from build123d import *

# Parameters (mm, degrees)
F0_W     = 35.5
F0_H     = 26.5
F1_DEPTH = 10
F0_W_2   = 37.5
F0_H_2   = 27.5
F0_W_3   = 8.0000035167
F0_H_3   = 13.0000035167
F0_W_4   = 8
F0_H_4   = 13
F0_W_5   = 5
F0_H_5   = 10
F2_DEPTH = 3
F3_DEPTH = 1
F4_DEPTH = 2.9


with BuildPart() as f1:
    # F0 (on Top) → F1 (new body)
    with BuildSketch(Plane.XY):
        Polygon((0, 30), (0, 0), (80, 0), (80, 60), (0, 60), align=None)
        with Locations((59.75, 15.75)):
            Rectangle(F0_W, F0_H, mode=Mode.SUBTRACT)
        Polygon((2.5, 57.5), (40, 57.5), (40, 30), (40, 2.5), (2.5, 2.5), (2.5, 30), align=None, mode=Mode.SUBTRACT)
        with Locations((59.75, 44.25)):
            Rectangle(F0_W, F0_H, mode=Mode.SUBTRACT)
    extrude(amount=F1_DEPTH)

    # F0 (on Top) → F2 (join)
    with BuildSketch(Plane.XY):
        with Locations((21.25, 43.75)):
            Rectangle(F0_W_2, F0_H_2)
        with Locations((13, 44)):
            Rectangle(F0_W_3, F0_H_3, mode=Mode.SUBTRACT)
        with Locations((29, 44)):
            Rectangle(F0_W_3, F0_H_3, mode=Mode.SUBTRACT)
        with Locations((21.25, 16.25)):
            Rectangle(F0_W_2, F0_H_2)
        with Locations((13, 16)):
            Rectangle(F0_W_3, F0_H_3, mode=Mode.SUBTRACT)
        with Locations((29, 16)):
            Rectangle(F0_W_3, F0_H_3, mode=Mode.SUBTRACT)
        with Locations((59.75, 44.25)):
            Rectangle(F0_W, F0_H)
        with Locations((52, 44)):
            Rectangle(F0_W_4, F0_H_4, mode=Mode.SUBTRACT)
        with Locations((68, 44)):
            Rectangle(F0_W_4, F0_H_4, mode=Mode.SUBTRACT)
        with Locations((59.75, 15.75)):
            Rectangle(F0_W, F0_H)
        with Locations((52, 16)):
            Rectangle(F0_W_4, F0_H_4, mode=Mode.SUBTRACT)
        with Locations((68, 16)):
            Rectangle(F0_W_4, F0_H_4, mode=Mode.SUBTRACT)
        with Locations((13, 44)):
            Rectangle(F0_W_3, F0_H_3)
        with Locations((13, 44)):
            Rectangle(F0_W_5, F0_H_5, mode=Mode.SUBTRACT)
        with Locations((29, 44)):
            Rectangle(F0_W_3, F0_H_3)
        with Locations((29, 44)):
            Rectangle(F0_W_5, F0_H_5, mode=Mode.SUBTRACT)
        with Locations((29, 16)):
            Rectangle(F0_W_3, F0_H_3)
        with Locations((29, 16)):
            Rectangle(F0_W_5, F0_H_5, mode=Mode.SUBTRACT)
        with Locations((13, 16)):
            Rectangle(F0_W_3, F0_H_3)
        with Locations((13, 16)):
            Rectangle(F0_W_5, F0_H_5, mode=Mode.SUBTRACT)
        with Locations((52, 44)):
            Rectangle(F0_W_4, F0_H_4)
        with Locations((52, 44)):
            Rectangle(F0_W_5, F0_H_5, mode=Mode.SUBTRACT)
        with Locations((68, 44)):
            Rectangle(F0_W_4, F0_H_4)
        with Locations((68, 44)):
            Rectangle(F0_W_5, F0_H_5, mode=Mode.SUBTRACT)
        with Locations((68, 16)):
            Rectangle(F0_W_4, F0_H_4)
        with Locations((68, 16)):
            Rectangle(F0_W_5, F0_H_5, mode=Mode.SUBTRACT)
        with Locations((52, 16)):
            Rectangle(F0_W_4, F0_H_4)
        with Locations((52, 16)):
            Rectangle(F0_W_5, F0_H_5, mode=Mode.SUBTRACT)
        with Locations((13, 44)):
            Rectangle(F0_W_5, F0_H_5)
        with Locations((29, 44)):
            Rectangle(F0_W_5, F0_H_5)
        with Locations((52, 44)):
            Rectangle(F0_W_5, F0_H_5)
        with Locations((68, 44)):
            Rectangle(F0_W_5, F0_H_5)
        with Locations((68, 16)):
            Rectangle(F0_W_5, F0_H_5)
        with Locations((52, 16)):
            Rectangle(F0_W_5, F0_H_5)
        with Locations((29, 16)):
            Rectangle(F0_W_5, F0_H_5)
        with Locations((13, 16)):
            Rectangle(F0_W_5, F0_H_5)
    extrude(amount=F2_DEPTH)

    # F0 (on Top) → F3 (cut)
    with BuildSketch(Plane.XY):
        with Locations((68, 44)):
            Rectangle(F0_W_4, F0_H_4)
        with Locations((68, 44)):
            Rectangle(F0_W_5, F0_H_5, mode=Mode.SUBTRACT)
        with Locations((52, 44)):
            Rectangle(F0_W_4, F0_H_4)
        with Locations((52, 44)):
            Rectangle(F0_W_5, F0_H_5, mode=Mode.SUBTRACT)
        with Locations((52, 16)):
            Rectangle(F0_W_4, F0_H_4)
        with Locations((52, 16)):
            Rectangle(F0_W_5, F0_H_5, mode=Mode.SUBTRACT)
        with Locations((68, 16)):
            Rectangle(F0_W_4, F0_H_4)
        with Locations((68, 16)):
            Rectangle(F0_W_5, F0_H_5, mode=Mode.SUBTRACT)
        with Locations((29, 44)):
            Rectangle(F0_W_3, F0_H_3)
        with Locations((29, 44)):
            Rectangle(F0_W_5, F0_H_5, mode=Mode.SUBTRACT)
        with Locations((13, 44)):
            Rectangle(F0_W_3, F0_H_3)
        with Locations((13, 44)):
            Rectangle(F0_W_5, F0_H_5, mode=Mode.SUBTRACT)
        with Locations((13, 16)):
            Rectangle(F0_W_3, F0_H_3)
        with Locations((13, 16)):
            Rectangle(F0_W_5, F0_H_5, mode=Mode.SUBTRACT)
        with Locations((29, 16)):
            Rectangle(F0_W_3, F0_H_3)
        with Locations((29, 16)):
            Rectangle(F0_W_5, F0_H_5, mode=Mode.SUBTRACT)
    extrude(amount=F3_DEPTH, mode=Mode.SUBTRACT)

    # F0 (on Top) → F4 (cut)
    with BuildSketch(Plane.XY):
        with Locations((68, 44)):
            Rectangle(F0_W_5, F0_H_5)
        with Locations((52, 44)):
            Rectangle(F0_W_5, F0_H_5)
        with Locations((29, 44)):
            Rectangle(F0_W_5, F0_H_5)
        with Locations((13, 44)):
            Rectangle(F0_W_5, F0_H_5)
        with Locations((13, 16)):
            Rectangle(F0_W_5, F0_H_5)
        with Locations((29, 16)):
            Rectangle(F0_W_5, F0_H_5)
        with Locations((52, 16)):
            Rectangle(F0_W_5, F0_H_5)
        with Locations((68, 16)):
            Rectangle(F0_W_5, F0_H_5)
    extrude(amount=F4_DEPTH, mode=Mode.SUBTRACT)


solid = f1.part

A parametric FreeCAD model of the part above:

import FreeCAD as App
import Part
import Sketcher

V = App.Vector
Q = App.Units.Quantity

doc = App.newDocument("Part")
body = doc.addObject("PartDesign::Body", "Body")

sketch1 = doc.addObject("Sketcher::SketchObject", "Sketch")
body.addObject(sketch1)
sketch1.AttachmentSupport = (doc.XY_Plane, [""])
sketch1.MapMode = "FlatFace"
sketch1.addGeometry(Part.LineSegment(V(0, 0, 0), V(80, 0, 0)), False)
sketch1.addGeometry(Part.LineSegment(V(80, 0, 0), V(80, 60, 0)), False)
sketch1.addGeometry(Part.LineSegment(V(80, 60, 0), V(0, 60, 0)), False)
sketch1.addGeometry(Part.LineSegment(V(0, 60, 0), V(0, 0, 0)), False)
sketch1.addGeometry(Part.LineSegment(V(77.5, 2.5, 0), V(42, 2.5, 0)), False)
sketch1.addGeometry(Part.LineSegment(V(42, 2.5, 0), V(42, 29, 0)), False)
sketch1.addGeometry(Part.LineSegment(V(42, 29, 0), V(77.5, 29, 0)), False)
sketch1.addGeometry(Part.LineSegment(V(77.5, 29, 0), V(77.5, 2.5, 0)), False)
sketch1.addGeometry(Part.LineSegment(V(2.5, 2.5, 0), V(2.5, 57.5, 0)), False)
sketch1.addGeometry(Part.LineSegment(V(2.5, 57.5, 0), V(40, 57.5, 0)), False)
sketch1.addGeometry(Part.LineSegment(V(40, 57.5, 0), V(40, 2.5, 0)), False)
sketch1.addGeometry(Part.LineSegment(V(40, 2.5, 0), V(2.5, 2.5, 0)), False)
sketch1.addGeometry(Part.LineSegment(V(77.5, 31, 0), V(42, 31, 0)), False)
sketch1.addGeometry(Part.LineSegment(V(42, 31, 0), V(42, 57.5, 0)), False)
sketch1.addGeometry(Part.LineSegment(V(42, 57.5, 0), V(77.5, 57.5, 0)), False)
sketch1.addGeometry(Part.LineSegment(V(77.5, 57.5, 0), V(77.5, 31, 0)), False)
sketch1.addConstraint(Sketcher.Constraint("Coincident", 0, 2, 1, 1))
sketch1.addConstraint(Sketcher.Constraint("Coincident", 1, 2, 2, 1))
sketch1.addConstraint(Sketcher.Constraint("Coincident", 2, 2, 3, 1))
sketch1.addConstraint(Sketcher.Constraint("Coincident", 3, 2, 0, 1))
sketch1.addConstraint(Sketcher.Constraint("Coincident", 4, 2, 5, 1))
sketch1.addConstraint(Sketcher.Constraint("Coincident", 5, 2, 6, 1))
sketch1.addConstraint(Sketcher.Constraint("Coincident", 6, 2, 7, 1))
sketch1.addConstraint(Sketcher.Constraint("Coincident", 7, 2, 4, 1))
sketch1.addConstraint(Sketcher.Constraint("Coincident", 8, 2, 9, 1))
sketch1.addConstraint(Sketcher.Constraint("Coincident", 9, 2, 10, 1))
sketch1.addConstraint(Sketcher.Constraint("Coincident", 10, 2, 11, 1))
sketch1.addConstraint(Sketcher.Constraint("Coincident", 11, 2, 8, 1))
sketch1.addConstraint(Sketcher.Constraint("Coincident", 12, 2, 13, 1))
sketch1.addConstraint(Sketcher.Constraint("Coincident", 13, 2, 14, 1))
sketch1.addConstraint(Sketcher.Constraint("Coincident", 14, 2, 15, 1))
sketch1.addConstraint(Sketcher.Constraint("Coincident", 15, 2, 12, 1))
sketch1.addConstraint(Sketcher.Constraint("Horizontal", 0))
sketch1.addConstraint(Sketcher.Constraint("Vertical", 1))
sketch1.addConstraint(Sketcher.Constraint("Horizontal", 2))
sketch1.addConstraint(Sketcher.Constraint("Vertical", 3))
sketch1.addConstraint(Sketcher.Constraint("Horizontal", 4))
sketch1.addConstraint(Sketcher.Constraint("Vertical", 5))
sketch1.addConstraint(Sketcher.Constraint("Horizontal", 6))
sketch1.addConstraint(Sketcher.Constraint("Vertical", 7))
sketch1.addConstraint(Sketcher.Constraint("Vertical", 8))
sketch1.addConstraint(Sketcher.Constraint("Horizontal", 9))
sketch1.addConstraint(Sketcher.Constraint("Vertical", 10))
sketch1.addConstraint(Sketcher.Constraint("Horizontal", 11))
sketch1.addConstraint(Sketcher.Constraint("Horizontal", 12))
sketch1.addConstraint(Sketcher.Constraint("Vertical", 13))
sketch1.addConstraint(Sketcher.Constraint("Horizontal", 14))
sketch1.addConstraint(Sketcher.Constraint("Vertical", 15))
sketch1.addConstraint(Sketcher.Constraint("Coincident", 3, 2, -1, 1))
sketch1.addConstraint(Sketcher.Constraint("Horizontal", 7, 2, 10, 2))
sketch1.addConstraint(Sketcher.Constraint("Horizontal", 9, 2, 13, 2))
sketch1.addConstraint(Sketcher.Constraint("Vertical", 5, 2, 12, 2))
sketch1.addConstraint(Sketcher.Constraint("Vertical", 7, 2, 14, 2))
sketch1.addConstraint(Sketcher.Constraint("Equal", 7, 13))
sketch1.addConstraint(Sketcher.Constraint("DistanceX", 0, 1, 0, 2, Q("80 mm")))
sketch1.addConstraint(Sketcher.Constraint("DistanceY", 1, 1, 1, 2, Q("60 mm")))
sketch1.addConstraint(Sketcher.Constraint("DistanceY", 8, 1, 8, 2, Q("55 mm")))
sketch1.addConstraint(Sketcher.Constraint("DistanceX", 4, 2, 4, 1, Q("35.5 mm")))
sketch1.addConstraint(Sketcher.Constraint("DistanceX", 9, 1, 9, 2, Q("37.5 mm")))
sketch1.addConstraint(Sketcher.Constraint("DistanceY", 5, 1, 5, 2, Q("26.5 mm")))
sketch1.addConstraint(Sketcher.Constraint("DistanceX", -1, 1, 4, 2, Q("42 mm")))
sketch1.addConstraint(Sketcher.Constraint("DistanceY", -1, 1, 5, 2, Q("29 mm")))
sketch1.addConstraint(Sketcher.Constraint("DistanceX", -1, 1, 9, 2, Q("40 mm")))
pad1 = doc.addObject("PartDesign::Pad", "Pad")
body.addObject(pad1)
pad1.Profile = sketch1
pad1.Length = 10

sketch2 = doc.addObject("Sketcher::SketchObject", "Sketch001")
body.addObject(sketch2)
sketch2.AttachmentSupport = (doc.XY_Plane, [""])
sketch2.MapMode = "FlatFace"
sketch2.addGeometry(Part.LineSegment(V(2.5, 57.5, 0), V(2.5, 2.5, 0)), False)
sketch2.addGeometry(Part.LineSegment(V(2.5, 2.5, 0), V(40, 2.5, 0)), False)
sketch2.addGeometry(Part.LineSegment(V(40, 2.5, 0), V(40, 57.5, 0)), False)
sketch2.addGeometry(Part.LineSegment(V(40, 57.5, 0), V(2.5, 57.5, 0)), False)
sketch2.addGeometry(Part.LineSegment(V(42, 57.5, 0), V(42, 31, 0)), False)
sketch2.addGeometry(Part.LineSegment(V(42, 31, 0), V(77.5, 31, 0)), False)
sketch2.addGeometry(Part.LineSegment(V(77.5, 31, 0), V(77.5, 57.5, 0)), False)
sketch2.addGeometry(Part.LineSegment(V(77.5, 57.5, 0), V(42, 57.5, 0)), False)
sketch2.addGeometry(Part.LineSegment(V(42, 29, 0), V(42, 2.5, 0)), False)
sketch2.addGeometry(Part.LineSegment(V(42, 2.5, 0), V(77.5, 2.5, 0)), False)
sketch2.addGeometry(Part.LineSegment(V(77.5, 2.5, 0), V(77.5, 29, 0)), False)
sketch2.addGeometry(Part.LineSegment(V(77.5, 29, 0), V(42, 29, 0)), False)
sketch2.addConstraint(Sketcher.Constraint("Coincident", 0, 2, 1, 1))
sketch2.addConstraint(Sketcher.Constraint("Coincident", 1, 2, 2, 1))
sketch2.addConstraint(Sketcher.Constraint("Coincident", 2, 2, 3, 1))
sketch2.addConstraint(Sketcher.Constraint("Coincident", 3, 2, 0, 1))
sketch2.addConstraint(Sketcher.Constraint("Coincident", 4, 2, 5, 1))
sketch2.addConstraint(Sketcher.Constraint("Coincident", 5, 2, 6, 1))
sketch2.addConstraint(Sketcher.Constraint("Coincident", 6, 2, 7, 1))
sketch2.addConstraint(Sketcher.Constraint("Coincident", 7, 2, 4, 1))
sketch2.addConstraint(Sketcher.Constraint("Coincident", 8, 2, 9, 1))
sketch2.addConstraint(Sketcher.Constraint("Coincident", 9, 2, 10, 1))
sketch2.addConstraint(Sketcher.Constraint("Coincident", 10, 2, 11, 1))
sketch2.addConstraint(Sketcher.Constraint("Coincident", 11, 2, 8, 1))
sketch2.addConstraint(Sketcher.Constraint("Vertical", 0))
sketch2.addConstraint(Sketcher.Constraint("Horizontal", 1))
sketch2.addConstraint(Sketcher.Constraint("Vertical", 2))
sketch2.addConstraint(Sketcher.Constraint("Horizontal", 3))
sketch2.addConstraint(Sketcher.Constraint("Vertical", 4))
sketch2.addConstraint(Sketcher.Constraint("Horizontal", 5))
sketch2.addConstraint(Sketcher.Constraint("Vertical", 6))
sketch2.addConstraint(Sketcher.Constraint("Horizontal", 7))
sketch2.addConstraint(Sketcher.Constraint("Vertical", 8))
sketch2.addConstraint(Sketcher.Constraint("Horizontal", 9))
sketch2.addConstraint(Sketcher.Constraint("Vertical", 10))
sketch2.addConstraint(Sketcher.Constraint("Horizontal", 11))
sketch2.addConstraint(Sketcher.Constraint("Horizontal", 3, 2, 6, 2))
sketch2.addConstraint(Sketcher.Constraint("Horizontal", 1, 2, 8, 2))
sketch2.addConstraint(Sketcher.Constraint("Vertical", 7, 2, 8, 2))
sketch2.addConstraint(Sketcher.Constraint("Vertical", 6, 2, 9, 2))
sketch2.addConstraint(Sketcher.Constraint("Equal", 6, 8))
sketch2.addConstraint(Sketcher.Constraint("DistanceY", 0, 2, 0, 1, Q("55 mm")))
sketch2.addConstraint(Sketcher.Constraint("DistanceX", 1, 1, 1, 2, Q("37.5 mm")))
sketch2.addConstraint(Sketcher.Constraint("DistanceX", 5, 1, 5, 2, Q("35.5 mm")))
sketch2.addConstraint(Sketcher.Constraint("DistanceY", 4, 2, 4, 1, Q("26.5 mm")))
sketch2.addConstraint(Sketcher.Constraint("DistanceX", -1, 1, 1, 2, Q("40 mm")))
sketch2.addConstraint(Sketcher.Constraint("DistanceX", -1, 1, 4, 2, Q("42 mm")))
sketch2.addConstraint(Sketcher.Constraint("DistanceY", -1, 1, 4, 2, Q("31 mm")))
pad2 = doc.addObject("PartDesign::Pad", "Pad001")
body.addObject(pad2)
pad2.Profile = sketch2
pad2.Length = 3

sketch3 = doc.addObject("Sketcher::SketchObject", "Sketch002")
body.addObject(sketch3)
sketch3.AttachmentSupport = (doc.XY_Plane, [""])
sketch3.MapMode = "FlatFace"
sketch3.addGeometry(Part.LineSegment(V(64, 50.5, 0), V(64, 37.5, 0)), False)
sketch3.addGeometry(Part.LineSegment(V(64, 37.5, 0), V(72, 37.5, 0)), False)
sketch3.addGeometry(Part.LineSegment(V(72, 37.5, 0), V(72, 50.5, 0)), False)
sketch3.addGeometry(Part.LineSegment(V(72, 50.5, 0), V(64, 50.5, 0)), False)
sketch3.addGeometry(Part.LineSegment(V(70.5, 39, 0), V(65.5, 39, 0)), False)
sketch3.addGeometry(Part.LineSegment(V(65.5, 39, 0), V(65.5, 49, 0)), False)
sketch3.addGeometry(Part.LineSegment(V(65.5, 49, 0), V(70.5, 49, 0)), False)
sketch3.addGeometry(Part.LineSegment(V(70.5, 49, 0), V(70.5, 39, 0)), False)
sketch3.addGeometry(Part.LineSegment(V(48, 50.5, 0), V(48, 37.5, 0)), False)
sketch3.addGeometry(Part.LineSegment(V(48, 37.5, 0), V(56, 37.5, 0)), False)
sketch3.addGeometry(Part.LineSegment(V(56, 37.5, 0), V(56, 50.5, 0)), False)
sketch3.addGeometry(Part.LineSegment(V(56, 50.5, 0), V(48, 50.5, 0)), False)
sketch3.addGeometry(Part.LineSegment(V(54.5, 39, 0), V(49.5, 39, 0)), False)
sketch3.addGeometry(Part.LineSegment(V(49.5, 39, 0), V(49.5, 49, 0)), False)
sketch3.addGeometry(Part.LineSegment(V(49.5, 49, 0), V(54.5, 49, 0)), False)
sketch3.addGeometry(Part.LineSegment(V(54.5, 49, 0), V(54.5, 39, 0)), False)
sketch3.addGeometry(Part.LineSegment(V(48, 22.5, 0), V(48, 9.5, 0)), False)
sketch3.addGeometry(Part.LineSegment(V(48, 9.5, 0), V(56, 9.5, 0)), False)
sketch3.addGeometry(Part.LineSegment(V(56, 9.5, 0), V(56, 22.5, 0)), False)
sketch3.addGeometry(Part.LineSegment(V(56, 22.5, 0), V(48, 22.5, 0)), False)
sketch3.addGeometry(Part.LineSegment(V(54.5, 11, 0), V(49.5, 11, 0)), False)
sketch3.addGeometry(Part.LineSegment(V(49.5, 11, 0), V(49.5, 21, 0)), False)
sketch3.addGeometry(Part.LineSegment(V(49.5, 21, 0), V(54.5, 21, 0)), False)
sketch3.addGeometry(Part.LineSegment(V(54.5, 21, 0), V(54.5, 11, 0)), False)
sketch3.addGeometry(Part.LineSegment(V(64, 22.5, 0), V(64, 9.5, 0)), False)
sketch3.addGeometry(Part.LineSegment(V(64, 9.5, 0), V(72, 9.5, 0)), False)
sketch3.addGeometry(Part.LineSegment(V(72, 9.5, 0), V(72, 22.5, 0)), False)
sketch3.addGeometry(Part.LineSegment(V(72, 22.5, 0), V(64, 22.5, 0)), False)
sketch3.addGeometry(Part.LineSegment(V(70.5, 11, 0), V(65.5, 11, 0)), False)
sketch3.addGeometry(Part.LineSegment(V(65.5, 11, 0), V(65.5, 21, 0)), False)
sketch3.addGeometry(Part.LineSegment(V(65.5, 21, 0), V(70.5, 21, 0)), False)
sketch3.addGeometry(Part.LineSegment(V(70.5, 21, 0), V(70.5, 11, 0)), False)
sketch3.addGeometry(Part.LineSegment(V(24.999998, 50.500002, 0), V(24.999998, 37.499998, 0)), False)
sketch3.addGeometry(Part.LineSegment(V(24.999998, 37.499998, 0), V(33.000002, 37.499998, 0)), False)
sketch3.addGeometry(Part.LineSegment(V(33.000002, 37.499998, 0), V(33.000002, 50.500002, 0)), False)
sketch3.addGeometry(Part.LineSegment(V(33.000002, 50.500002, 0), V(24.999998, 50.500002, 0)), False)
sketch3.addGeometry(Part.LineSegment(V(31.5, 39, 0), V(26.5, 39, 0)), False)
sketch3.addGeometry(Part.LineSegment(V(26.5, 39, 0), V(26.5, 49, 0)), False)
sketch3.addGeometry(Part.LineSegment(V(26.5, 49, 0), V(31.5, 49, 0)), False)
sketch3.addGeometry(Part.LineSegment(V(31.5, 49, 0), V(31.5, 39, 0)), False)
sketch3.addGeometry(Part.LineSegment(V(8.999998, 50.500002, 0), V(8.999998, 37.499998, 0)), False)
sketch3.addGeometry(Part.LineSegment(V(8.999998, 37.499998, 0), V(17.000002, 37.499998, 0)), False)
sketch3.addGeometry(Part.LineSegment(V(17.000002, 37.499998, 0), V(17.000002, 50.500002, 0)), False)
sketch3.addGeometry(Part.LineSegment(V(17.000002, 50.500002, 0), V(8.999998, 50.500002, 0)), False)
sketch3.addGeometry(Part.LineSegment(V(15.5, 39, 0), V(10.5, 39, 0)), False)
sketch3.addGeometry(Part.LineSegment(V(10.5, 39, 0), V(10.5, 49, 0)), False)
sketch3.addGeometry(Part.LineSegment(V(10.5, 49, 0), V(15.5, 49, 0)), False)
sketch3.addGeometry(Part.LineSegment(V(15.5, 49, 0), V(15.5, 39, 0)), False)
sketch3.addGeometry(Part.LineSegment(V(8.999998, 22.500002, 0), V(8.999998, 9.499998, 0)), False)
sketch3.addGeometry(Part.LineSegment(V(8.999998, 9.499998, 0), V(17.000002, 9.499998, 0)), False)
sketch3.addGeometry(Part.LineSegment(V(17.000002, 9.499998, 0), V(17.000002, 22.500002, 0)), False)
sketch3.addGeometry(Part.LineSegment(V(17.000002, 22.500002, 0), V(8.999998, 22.500002, 0)), False)
sketch3.addGeometry(Part.LineSegment(V(15.5, 11, 0), V(10.5, 11, 0)), False)
sketch3.addGeometry(Part.LineSegment(V(10.5, 11, 0), V(10.5, 21, 0)), False)
sketch3.addGeometry(Part.LineSegment(V(10.5, 21, 0), V(15.5, 21, 0)), False)
sketch3.addGeometry(Part.LineSegment(V(15.5, 21, 0), V(15.5, 11, 0)), False)
sketch3.addGeometry(Part.LineSegment(V(24.999998, 22.500002, 0), V(24.999998, 9.499998, 0)), False)
sketch3.addGeometry(Part.LineSegment(V(24.999998, 9.499998, 0), V(33.000002, 9.499998, 0)), False)
sketch3.addGeometry(Part.LineSegment(V(33.000002, 9.499998, 0), V(33.000002, 22.500002, 0)), False)
sketch3.addGeometry(Part.LineSegment(V(33.000002, 22.500002, 0), V(24.999998, 22.500002, 0)), False)
sketch3.addGeometry(Part.LineSegment(V(31.5, 11, 0), V(26.5, 11, 0)), False)
sketch3.addGeometry(Part.LineSegment(V(26.5, 11, 0), V(26.5, 21, 0)), False)
sketch3.addGeometry(Part.LineSegment(V(26.5, 21, 0), V(31.5, 21, 0)), False)
sketch3.addGeometry(Part.LineSegment(V(31.5, 21, 0), V(31.5, 11, 0)), False)
sketch3.addConstraint(Sketcher.Constraint("Coincident", 0, 2, 1, 1))
sketch3.addConstraint(Sketcher.Constraint("Coincident", 1, 2, 2, 1))
sketch3.addConstraint(Sketcher.Constraint("Coincident", 2, 2, 3, 1))
sketch3.addConstraint(Sketcher.Constraint("Coincident", 3, 2, 0, 1))
sketch3.addConstraint(Sketcher.Constraint("Coincident", 4, 2, 5, 1))
sketch3.addConstraint(Sketcher.Constraint("Coincident", 5, 2, 6, 1))
sketch3.addConstraint(Sketcher.Constraint("Coincident", 6, 2, 7, 1))
sketch3.addConstraint(Sketcher.Constraint("Coincident", 7, 2, 4, 1))
sketch3.addConstraint(Sketcher.Constraint("Coincident", 8, 2, 9, 1))
sketch3.addConstraint(Sketcher.Constraint("Coincident", 9, 2, 10, 1))
sketch3.addConstraint(Sketcher.Constraint("Coincident", 10, 2, 11, 1))
sketch3.addConstraint(Sketcher.Constraint("Coincident", 11, 2, 8, 1))
sketch3.addConstraint(Sketcher.Constraint("Coincident", 12, 2, 13, 1))
sketch3.addConstraint(Sketcher.Constraint("Coincident", 13, 2, 14, 1))
sketch3.addConstraint(Sketcher.Constraint("Coincident", 14, 2, 15, 1))
sketch3.addConstraint(Sketcher.Constraint("Coincident", 15, 2, 12, 1))
sketch3.addConstraint(Sketcher.Constraint("Coincident", 16, 2, 17, 1))
sketch3.addConstraint(Sketcher.Constraint("Coincident", 17, 2, 18, 1))
sketch3.addConstraint(Sketcher.Constraint("Coincident", 18, 2, 19, 1))
sketch3.addConstraint(Sketcher.Constraint("Coincident", 19, 2, 16, 1))
sketch3.addConstraint(Sketcher.Constraint("Coincident", 20, 2, 21, 1))
sketch3.addConstraint(Sketcher.Constraint("Coincident", 21, 2, 22, 1))
sketch3.addConstraint(Sketcher.Constraint("Coincident", 22, 2, 23, 1))
sketch3.addConstraint(Sketcher.Constraint("Coincident", 23, 2, 20, 1))
sketch3.addConstraint(Sketcher.Constraint("Coincident", 24, 2, 25, 1))
sketch3.addConstraint(Sketcher.Constraint("Coincident", 25, 2, 26, 1))
sketch3.addConstraint(Sketcher.Constraint("Coincident", 26, 2, 27, 1))
sketch3.addConstraint(Sketcher.Constraint("Coincident", 27, 2, 24, 1))
sketch3.addConstraint(Sketcher.Constraint("Coincident", 28, 2, 29, 1))
sketch3.addConstraint(Sketcher.Constraint("Coincident", 29, 2, 30, 1))
sketch3.addConstraint(Sketcher.Constraint("Coincident", 30, 2, 31, 1))
sketch3.addConstraint(Sketcher.Constraint("Coincident", 31, 2, 28, 1))
sketch3.addConstraint(Sketcher.Constraint("Coincident", 32, 2, 33, 1))
sketch3.addConstraint(Sketcher.Constraint("Coincident", 33, 2, 34, 1))
sketch3.addConstraint(Sketcher.Constraint("Coincident", 34, 2, 35, 1))
sketch3.addConstraint(Sketcher.Constraint("Coincident", 35, 2, 32, 1))
sketch3.addConstraint(Sketcher.Constraint("Coincident", 36, 2, 37, 1))
sketch3.addConstraint(Sketcher.Constraint("Coincident", 37, 2, 38, 1))
sketch3.addConstraint(Sketcher.Constraint("Coincident", 38, 2, 39, 1))
sketch3.addConstraint(Sketcher.Constraint("Coincident", 39, 2, 36, 1))
sketch3.addConstraint(Sketcher.Constraint("Coincident", 40, 2, 41, 1))
sketch3.addConstraint(Sketcher.Constraint("Coincident", 41, 2, 42, 1))
sketch3.addConstraint(Sketcher.Constraint("Coincident", 42, 2, 43, 1))
sketch3.addConstraint(Sketcher.Constraint("Coincident", 43, 2, 40, 1))
sketch3.addConstraint(Sketcher.Constraint("Coincident", 44, 2, 45, 1))
sketch3.addConstraint(Sketcher.Constraint("Coincident", 45, 2, 46, 1))
sketch3.addConstraint(Sketcher.Constraint("Coincident", 46, 2, 47, 1))
sketch3.addConstraint(Sketcher.Constraint("Coincident", 47, 2, 44, 1))
sketch3.addConstraint(Sketcher.Constraint("Coincident", 48, 2, 49, 1))
sketch3.addConstraint(Sketcher.Constraint("Coincident", 49, 2, 50, 1))
sketch3.addConstraint(Sketcher.Constraint("Coincident", 50, 2, 51, 1))
sketch3.addConstraint(Sketcher.Constraint("Coincident", 51, 2, 48, 1))
sketch3.addConstraint(Sketcher.Constraint("Coincident", 52, 2, 53, 1))
sketch3.addConstraint(Sketcher.Constraint("Coincident", 53, 2, 54, 1))
sketch3.addConstraint(Sketcher.Constraint("Coincident", 54, 2, 55, 1))
sketch3.addConstraint(Sketcher.Constraint("Coincident", 55, 2, 52, 1))
sketch3.addConstraint(Sketcher.Constraint("Coincident", 56, 2, 57, 1))
sketch3.addConstraint(Sketcher.Constraint("Coincident", 57, 2, 58, 1))
sketch3.addConstraint(Sketcher.Constraint("Coincident", 58, 2, 59, 1))
sketch3.addConstraint(Sketcher.Constraint("Coincident", 59, 2, 56, 1))
sketch3.addConstraint(Sketcher.Constraint("Coincident", 60, 2, 61, 1))
sketch3.addConstraint(Sketcher.Constraint("Coincident", 61, 2, 62, 1))
sketch3.addConstraint(Sketcher.Constraint("Coincident", 62, 2, 63, 1))
sketch3.addConstraint(Sketcher.Constraint("Coincident", 63, 2, 60, 1))
sketch3.addConstraint(Sketcher.Constraint("Vertical", 0))
sketch3.addConstraint(Sketcher.Constraint("Horizontal", 1))
sketch3.addConstraint(Sketcher.Constraint("Vertical", 2))
sketch3.addConstraint(Sketcher.Constraint("Horizontal", 3))
sketch3.addConstraint(Sketcher.Constraint("Horizontal", 4))
sketch3.addConstraint(Sketcher.Constraint("Vertical", 5))
sketch3.addConstraint(Sketcher.Constraint("Horizontal", 6))
sketch3.addConstraint(Sketcher.Constraint("Vertical", 7))
sketch3.addConstraint(Sketcher.Constraint("Vertical", 8))
sketch3.addConstraint(Sketcher.Constraint("Horizontal", 9))
sketch3.addConstraint(Sketcher.Constraint("Vertical", 10))
sketch3.addConstraint(Sketcher.Constraint("Horizontal", 11))
sketch3.addConstraint(Sketcher.Constraint("Horizontal", 12))
sketch3.addConstraint(Sketcher.Constraint("Vertical", 13))
sketch3.addConstraint(Sketcher.Constraint("Horizontal", 14))
sketch3.addConstraint(Sketcher.Constraint("Vertical", 15))
sketch3.addConstraint(Sketcher.Constraint("Vertical", 16))
sketch3.addConstraint(Sketcher.Constraint("Horizontal", 17))
sketch3.addConstraint(Sketcher.Constraint("Vertical", 18))
sketch3.addConstraint(Sketcher.Constraint("Horizontal", 19))
sketch3.addConstraint(Sketcher.Constraint("Horizontal", 20))
sketch3.addConstraint(Sketcher.Constraint("Vertical", 21))
sketch3.addConstraint(Sketcher.Constraint("Horizontal", 22))
sketch3.addConstraint(Sketcher.Constraint("Vertical", 23))
sketch3.addConstraint(Sketcher.Constraint("Vertical", 24))
sketch3.addConstraint(Sketcher.Constraint("Horizontal", 25))
sketch3.addConstraint(Sketcher.Constraint("Vertical", 26))
sketch3.addConstraint(Sketcher.Constraint("Horizontal", 27))
sketch3.addConstraint(Sketcher.Constraint("Horizontal", 28))
sketch3.addConstraint(Sketcher.Constraint("Vertical", 29))
sketch3.addConstraint(Sketcher.Constraint("Horizontal", 30))
sketch3.addConstraint(Sketcher.Constraint("Vertical", 31))
sketch3.addConstraint(Sketcher.Constraint("Vertical", 32))
sketch3.addConstraint(Sketcher.Constraint("Horizontal", 33))
sketch3.addConstraint(Sketcher.Constraint("Vertical", 34))
sketch3.addConstraint(Sketcher.Constraint("Horizontal", 35))
sketch3.addConstraint(Sketcher.Constraint("Horizontal", 36))
sketch3.addConstraint(Sketcher.Constraint("Vertical", 37))
sketch3.addConstraint(Sketcher.Constraint("Horizontal", 38))
sketch3.addConstraint(Sketcher.Constraint("Vertical", 39))
sketch3.addConstraint(Sketcher.Constraint("Vertical", 40))
sketch3.addConstraint(Sketcher.Constraint("Horizontal", 41))
sketch3.addConstraint(Sketcher.Constraint("Vertical", 42))
sketch3.addConstraint(Sketcher.Constraint("Horizontal", 43))
sketch3.addConstraint(Sketcher.Constraint("Horizontal", 44))
sketch3.addConstraint(Sketcher.Constraint("Vertical", 45))
sketch3.addConstraint(Sketcher.Constraint("Horizontal", 46))
sketch3.addConstraint(Sketcher.Constraint("Vertical", 47))
sketch3.addConstraint(Sketcher.Constraint("Vertical", 48))
sketch3.addConstraint(Sketcher.Constraint("Horizontal", 49))
sketch3.addConstraint(Sketcher.Constraint("Vertical", 50))
sketch3.addConstraint(Sketcher.Constraint("Horizontal", 51))
sketch3.addConstraint(Sketcher.Constraint("Horizontal", 52))
sketch3.addConstraint(Sketcher.Constraint("Vertical", 53))
sketch3.addConstraint(Sketcher.Constraint("Horizontal", 54))
sketch3.addConstraint(Sketcher.Constraint("Vertical", 55))
sketch3.addConstraint(Sketcher.Constraint("Vertical", 56))
sketch3.addConstraint(Sketcher.Constraint("Horizontal", 57))
sketch3.addConstraint(Sketcher.Constraint("Vertical", 58))
sketch3.addConstraint(Sketcher.Constraint("Horizontal", 59))
sketch3.addConstraint(Sketcher.Constraint("Horizontal", 60))
sketch3.addConstraint(Sketcher.Constraint("Vertical", 61))
sketch3.addConstraint(Sketcher.Constraint("Horizontal", 62))
sketch3.addConstraint(Sketcher.Constraint("Vertical", 63))
sketch3.addConstraint(Sketcher.Constraint("Horizontal", 1, 2, 8, 2))
sketch3.addConstraint(Sketcher.Constraint("Horizontal", 3, 2, 10, 2))
sketch3.addConstraint(Sketcher.Constraint("Horizontal", 7, 2, 12, 2))
sketch3.addConstraint(Sketcher.Constraint("Horizontal", 6, 2, 13, 2))
sketch3.addConstraint(Sketcher.Constraint("Horizontal", 17, 2, 24, 2))
sketch3.addConstraint(Sketcher.Constraint("Horizontal", 19, 2, 26, 2))
sketch3.addConstraint(Sketcher.Constraint("Horizontal", 23, 2, 28, 2))
sketch3.addConstraint(Sketcher.Constraint("Horizontal", 22, 2, 29, 2))
sketch3.addConstraint(Sketcher.Constraint("Horizontal", 9, 2, 32, 2))
sketch3.addConstraint(Sketcher.Constraint("Horizontal", 11, 2, 34, 2))
sketch3.addConstraint(Sketcher.Constraint("Horizontal", 15, 2, 36, 2))
sketch3.addConstraint(Sketcher.Constraint("Horizontal", 14, 2, 37, 2))
sketch3.addConstraint(Sketcher.Constraint("Horizontal", 33, 2, 40, 2))
sketch3.addConstraint(Sketcher.Constraint("Horizontal", 35, 2, 42, 2))
sketch3.addConstraint(Sketcher.Constraint("Horizontal", 39, 2, 44, 2))
sketch3.addConstraint(Sketcher.Constraint("Horizontal", 38, 2, 45, 2))
sketch3.addConstraint(Sketcher.Constraint("Horizontal", 25, 2, 48, 2))
sketch3.addConstraint(Sketcher.Constraint("Horizontal", 27, 2, 50, 2))
sketch3.addConstraint(Sketcher.Constraint("Horizontal", 31, 2, 52, 2))
sketch3.addConstraint(Sketcher.Constraint("Horizontal", 30, 2, 53, 2))
sketch3.addConstraint(Sketcher.Constraint("Horizontal", 49, 2, 56, 2))
sketch3.addConstraint(Sketcher.Constraint("Horizontal", 51, 2, 58, 2))
sketch3.addConstraint(Sketcher.Constraint("Horizontal", 55, 2, 60, 2))
sketch3.addConstraint(Sketcher.Constraint("Horizontal", 54, 2, 61, 2))
sketch3.addConstraint(Sketcher.Constraint("Vertical", 11, 2, 16, 2))
sketch3.addConstraint(Sketcher.Constraint("Vertical", 10, 2, 17, 2))
sketch3.addConstraint(Sketcher.Constraint("Vertical", 13, 2, 20, 2))
sketch3.addConstraint(Sketcher.Constraint("Vertical", 15, 2, 22, 2))
sketch3.addConstraint(Sketcher.Constraint("Vertical", 3, 2, 24, 2))
sketch3.addConstraint(Sketcher.Constraint("Vertical", 2, 2, 25, 2))
sketch3.addConstraint(Sketcher.Constraint("Vertical", 5, 2, 28, 2))
sketch3.addConstraint(Sketcher.Constraint("Vertical", 7, 2, 30, 2))
sketch3.addConstraint(Sketcher.Constraint("Vertical", 43, 2, 48, 2))
sketch3.addConstraint(Sketcher.Constraint("Vertical", 42, 2, 49, 2))
sketch3.addConstraint(Sketcher.Constraint("Vertical", 45, 2, 52, 2))
sketch3.addConstraint(Sketcher.Constraint("Vertical", 47, 2, 54, 2))
sketch3.addConstraint(Sketcher.Constraint("Vertical", 35, 2, 56, 2))
sketch3.addConstraint(Sketcher.Constraint("Vertical", 34, 2, 57, 2))
sketch3.addConstraint(Sketcher.Constraint("Vertical", 37, 2, 60, 2))
sketch3.addConstraint(Sketcher.Constraint("Vertical", 39, 2, 62, 2))
sketch3.addConstraint(Sketcher.Constraint("Equal", 3, 9))
sketch3.addConstraint(Sketcher.Constraint("Equal", 6, 12))
sketch3.addConstraint(Sketcher.Constraint("Equal", 30, 36))
sketch3.addConstraint(Sketcher.Constraint("Equal", 35, 41))
sketch3.addConstraint(Sketcher.Constraint("Equal", 38, 44))
sketch3.addConstraint(Sketcher.Constraint("Equal", 10, 16))
sketch3.addConstraint(Sketcher.Constraint("Equal", 15, 21))
sketch3.addConstraint(Sketcher.Constraint("DistanceX", 1, 1, 1, 2, Q("8 mm")))
sketch3.addConstraint(Sketcher.Constraint("DistanceX", 4, 2, 4, 1, Q("5 mm")))
sketch3.addConstraint(Sketcher.Constraint("DistanceY", 0, 2, 0, 1, Q("13 mm")))
sketch3.addConstraint(Sketcher.Constraint("DistanceY", 5, 1, 5, 2, Q("10 mm")))
sketch3.addConstraint(Sketcher.Constraint("DistanceX", -1, 1, 0, 2, Q("64 mm")))
sketch3.addConstraint(Sketcher.Constraint("DistanceY", -1, 1, 4, 2, Q("39 mm")))
sketch3.addConstraint(Sketcher.Constraint("DistanceX", -1, 1, 8, 2, Q("48 mm")))
sketch3.addConstraint(Sketcher.Constraint("DistanceY", -1, 1, 20, 2, Q("11 mm")))
sketch3.addConstraint(Sketcher.Constraint("DistanceX", -1, 1, 32, 2, Q("24.999998 mm")))
sketch3.addConstraint(Sketcher.Constraint("DistanceX", -1, 1, 33, 2, Q("33.000002 mm")))
sketch3.addConstraint(Sketcher.Constraint("DistanceX", -1, 1, 40, 2, Q("8.999998 mm")))
sketch3.addConstraint(Sketcher.Constraint("DistanceY", -1, 1, 0, 2, Q("37.5 mm")))
sketch3.addConstraint(Sketcher.Constraint("DistanceX", -1, 1, 4, 2, Q("65.5 mm")))
sketch3.addConstraint(Sketcher.Constraint("DistanceX", -1, 1, 12, 2, Q("49.5 mm")))
sketch3.addConstraint(Sketcher.Constraint("DistanceY", -1, 1, 16, 2, Q("9.5 mm")))
sketch3.addConstraint(Sketcher.Constraint("DistanceX", -1, 1, 36, 2, Q("26.5 mm")))
sketch3.addConstraint(Sketcher.Constraint("DistanceX", -1, 1, 44, 2, Q("10.5 mm")))
pocket1 = doc.addObject("PartDesign::Pocket", "Pocket")
body.addObject(pocket1)
pocket1.Profile = sketch3
pocket1.Length = 1
pocket1.Reversed = True

sketch4 = doc.addObject("Sketcher::SketchObject", "Sketch003")
body.addObject(sketch4)
sketch4.AttachmentSupport = (doc.XY_Plane, [""])
sketch4.MapMode = "FlatFace"
sketch4.addGeometry(Part.LineSegment(V(65.5, 49, 0), V(65.5, 39, 0)), False)
sketch4.addGeometry(Part.LineSegment(V(65.5, 39, 0), V(70.5, 39, 0)), False)
sketch4.addGeometry(Part.LineSegment(V(70.5, 39, 0), V(70.5, 49, 0)), False)
sketch4.addGeometry(Part.LineSegment(V(70.5, 49, 0), V(65.5, 49, 0)), False)
sketch4.addGeometry(Part.LineSegment(V(49.5, 49, 0), V(49.5, 39, 0)), False)
sketch4.addGeometry(Part.LineSegment(V(49.5, 39, 0), V(54.5, 39, 0)), False)
sketch4.addGeometry(Part.LineSegment(V(54.5, 39, 0), V(54.5, 49, 0)), False)
sketch4.addGeometry(Part.LineSegment(V(54.5, 49, 0), V(49.5, 49, 0)), False)
sketch4.addGeometry(Part.LineSegment(V(26.5, 49, 0), V(26.5, 39, 0)), False)
sketch4.addGeometry(Part.LineSegment(V(26.5, 39, 0), V(31.5, 39, 0)), False)
sketch4.addGeometry(Part.LineSegment(V(31.5, 39, 0), V(31.5, 49, 0)), False)
sketch4.addGeometry(Part.LineSegment(V(31.5, 49, 0), V(26.5, 49, 0)), False)
sketch4.addGeometry(Part.LineSegment(V(10.5, 49, 0), V(10.5, 39, 0)), False)
sketch4.addGeometry(Part.LineSegment(V(10.5, 39, 0), V(15.5, 39, 0)), False)
sketch4.addGeometry(Part.LineSegment(V(15.5, 39, 0), V(15.5, 49, 0)), False)
sketch4.addGeometry(Part.LineSegment(V(15.5, 49, 0), V(10.5, 49, 0)), False)
sketch4.addGeometry(Part.LineSegment(V(10.5, 21, 0), V(10.5, 11, 0)), False)
sketch4.addGeometry(Part.LineSegment(V(10.5, 11, 0), V(15.5, 11, 0)), False)
sketch4.addGeometry(Part.LineSegment(V(15.5, 11, 0), V(15.5, 21, 0)), False)
sketch4.addGeometry(Part.LineSegment(V(15.5, 21, 0), V(10.5, 21, 0)), False)
sketch4.addGeometry(Part.LineSegment(V(26.5, 21, 0), V(26.5, 11, 0)), False)
sketch4.addGeometry(Part.LineSegment(V(26.5, 11, 0), V(31.5, 11, 0)), False)
sketch4.addGeometry(Part.LineSegment(V(31.5, 11, 0), V(31.5, 21, 0)), False)
sketch4.addGeometry(Part.LineSegment(V(31.5, 21, 0), V(26.5, 21, 0)), False)
sketch4.addGeometry(Part.LineSegment(V(49.5, 21, 0), V(49.5, 11, 0)), False)
sketch4.addGeometry(Part.LineSegment(V(49.5, 11, 0), V(54.5, 11, 0)), False)
sketch4.addGeometry(Part.LineSegment(V(54.5, 11, 0), V(54.5, 21, 0)), False)
sketch4.addGeometry(Part.LineSegment(V(54.5, 21, 0), V(49.5, 21, 0)), False)
sketch4.addGeometry(Part.LineSegment(V(65.5, 21, 0), V(65.5, 11, 0)), False)
sketch4.addGeometry(Part.LineSegment(V(65.5, 11, 0), V(70.5, 11, 0)), False)
sketch4.addGeometry(Part.LineSegment(V(70.5, 11, 0), V(70.5, 21, 0)), False)
sketch4.addGeometry(Part.LineSegment(V(70.5, 21, 0), V(65.5, 21, 0)), False)
sketch4.addConstraint(Sketcher.Constraint("Coincident", 0, 2, 1, 1))
sketch4.addConstraint(Sketcher.Constraint("Coincident", 1, 2, 2, 1))
sketch4.addConstraint(Sketcher.Constraint("Coincident", 2, 2, 3, 1))
sketch4.addConstraint(Sketcher.Constraint("Coincident", 3, 2, 0, 1))
sketch4.addConstraint(Sketcher.Constraint("Coincident", 4, 2, 5, 1))
sketch4.addConstraint(Sketcher.Constraint("Coincident", 5, 2, 6, 1))
sketch4.addConstraint(Sketcher.Constraint("Coincident", 6, 2, 7, 1))
sketch4.addConstraint(Sketcher.Constraint("Coincident", 7, 2, 4, 1))
sketch4.addConstraint(Sketcher.Constraint("Coincident", 8, 2, 9, 1))
sketch4.addConstraint(Sketcher.Constraint("Coincident", 9, 2, 10, 1))
sketch4.addConstraint(Sketcher.Constraint("Coincident", 10, 2, 11, 1))
sketch4.addConstraint(Sketcher.Constraint("Coincident", 11, 2, 8, 1))
sketch4.addConstraint(Sketcher.Constraint("Coincident", 12, 2, 13, 1))
sketch4.addConstraint(Sketcher.Constraint("Coincident", 13, 2, 14, 1))
sketch4.addConstraint(Sketcher.Constraint("Coincident", 14, 2, 15, 1))
sketch4.addConstraint(Sketcher.Constraint("Coincident", 15, 2, 12, 1))
sketch4.addConstraint(Sketcher.Constraint("Coincident", 16, 2, 17, 1))
sketch4.addConstraint(Sketcher.Constraint("Coincident", 17, 2, 18, 1))
sketch4.addConstraint(Sketcher.Constraint("Coincident", 18, 2, 19, 1))
sketch4.addConstraint(Sketcher.Constraint("Coincident", 19, 2, 16, 1))
sketch4.addConstraint(Sketcher.Constraint("Coincident", 20, 2, 21, 1))
sketch4.addConstraint(Sketcher.Constraint("Coincident", 21, 2, 22, 1))
sketch4.addConstraint(Sketcher.Constraint("Coincident", 22, 2, 23, 1))
sketch4.addConstraint(Sketcher.Constraint("Coincident", 23, 2, 20, 1))
sketch4.addConstraint(Sketcher.Constraint("Coincident", 24, 2, 25, 1))
sketch4.addConstraint(Sketcher.Constraint("Coincident", 25, 2, 26, 1))
sketch4.addConstraint(Sketcher.Constraint("Coincident", 26, 2, 27, 1))
sketch4.addConstraint(Sketcher.Constraint("Coincident", 27, 2, 24, 1))
sketch4.addConstraint(Sketcher.Constraint("Coincident", 28, 2, 29, 1))
sketch4.addConstraint(Sketcher.Constraint("Coincident", 29, 2, 30, 1))
sketch4.addConstraint(Sketcher.Constraint("Coincident", 30, 2, 31, 1))
sketch4.addConstraint(Sketcher.Constraint("Coincident", 31, 2, 28, 1))
sketch4.addConstraint(Sketcher.Constraint("Vertical", 0))
sketch4.addConstraint(Sketcher.Constraint("Horizontal", 1))
sketch4.addConstraint(Sketcher.Constraint("Vertical", 2))
sketch4.addConstraint(Sketcher.Constraint("Horizontal", 3))
sketch4.addConstraint(Sketcher.Constraint("Vertical", 4))
sketch4.addConstraint(Sketcher.Constraint("Horizontal", 5))
sketch4.addConstraint(Sketcher.Constraint("Vertical", 6))
sketch4.addConstraint(Sketcher.Constraint("Horizontal", 7))
sketch4.addConstraint(Sketcher.Constraint("Vertical", 8))
sketch4.addConstraint(Sketcher.Constraint("Horizontal", 9))
sketch4.addConstraint(Sketcher.Constraint("Vertical", 10))
sketch4.addConstraint(Sketcher.Constraint("Horizontal", 11))
sketch4.addConstraint(Sketcher.Constraint("Vertical", 12))
sketch4.addConstraint(Sketcher.Constraint("Horizontal", 13))
sketch4.addConstraint(Sketcher.Constraint("Vertical", 14))
sketch4.addConstraint(Sketcher.Constraint("Horizontal", 15))
sketch4.addConstraint(Sketcher.Constraint("Vertical", 16))
sketch4.addConstraint(Sketcher.Constraint("Horizontal", 17))
sketch4.addConstraint(Sketcher.Constraint("Vertical", 18))
sketch4.addConstraint(Sketcher.Constraint("Horizontal", 19))
sketch4.addConstraint(Sketcher.Constraint("Vertical", 20))
sketch4.addConstraint(Sketcher.Constraint("Horizontal", 21))
sketch4.addConstraint(Sketcher.Constraint("Vertical", 22))
sketch4.addConstraint(Sketcher.Constraint("Horizontal", 23))
sketch4.addConstraint(Sketcher.Constraint("Vertical", 24))
sketch4.addConstraint(Sketcher.Constraint("Horizontal", 25))
sketch4.addConstraint(Sketcher.Constraint("Vertical", 26))
sketch4.addConstraint(Sketcher.Constraint("Horizontal", 27))
sketch4.addConstraint(Sketcher.Constraint("Vertical", 28))
sketch4.addConstraint(Sketcher.Constraint("Horizontal", 29))
sketch4.addConstraint(Sketcher.Constraint("Vertical", 30))
sketch4.addConstraint(Sketcher.Constraint("Horizontal", 31))
sketch4.addConstraint(Sketcher.Constraint("Horizontal", 1, 2, 4, 2))
sketch4.addConstraint(Sketcher.Constraint("Horizontal", 3, 2, 6, 2))
sketch4.addConstraint(Sketcher.Constraint("Horizontal", 5, 2, 8, 2))
sketch4.addConstraint(Sketcher.Constraint("Horizontal", 7, 2, 10, 2))
sketch4.addConstraint(Sketcher.Constraint("Horizontal", 9, 2, 12, 2))
sketch4.addConstraint(Sketcher.Constraint("Horizontal", 11, 2, 14, 2))
sketch4.addConstraint(Sketcher.Constraint("Horizontal", 17, 2, 20, 2))
sketch4.addConstraint(Sketcher.Constraint("Horizontal", 19, 2, 22, 2))
sketch4.addConstraint(Sketcher.Constraint("Horizontal", 21, 2, 24, 2))
sketch4.addConstraint(Sketcher.Constraint("Horizontal", 23, 2, 26, 2))
sketch4.addConstraint(Sketcher.Constraint("Horizontal", 25, 2, 28, 2))
sketch4.addConstraint(Sketcher.Constraint("Horizontal", 27, 2, 30, 2))
sketch4.addConstraint(Sketcher.Constraint("Vertical", 15, 2, 16, 2))
sketch4.addConstraint(Sketcher.Constraint("Vertical", 14, 2, 17, 2))
sketch4.addConstraint(Sketcher.Constraint("Vertical", 11, 2, 20, 2))
sketch4.addConstraint(Sketcher.Constraint("Vertical", 10, 2, 21, 2))
sketch4.addConstraint(Sketcher.Constraint("Vertical", 7, 2, 24, 2))
sketch4.addConstraint(Sketcher.Constraint("Vertical", 6, 2, 25, 2))
sketch4.addConstraint(Sketcher.Constraint("Vertical", 3, 2, 28, 2))
sketch4.addConstraint(Sketcher.Constraint("Vertical", 2, 2, 29, 2))
sketch4.addConstraint(Sketcher.Constraint("Equal", 3, 5))
sketch4.addConstraint(Sketcher.Constraint("Equal", 7, 9))
sketch4.addConstraint(Sketcher.Constraint("Equal", 11, 13))
sketch4.addConstraint(Sketcher.Constraint("Equal", 14, 16))
sketch4.addConstraint(Sketcher.Constraint("DistanceX", 1, 1, 1, 2, Q("5 mm")))
sketch4.addConstraint(Sketcher.Constraint("DistanceY", 0, 2, 0, 1, Q("10 mm")))
sketch4.addConstraint(Sketcher.Constraint("DistanceY", -1, 1, 0, 2, Q("39 mm")))
sketch4.addConstraint(Sketcher.Constraint("DistanceY", -1, 1, 16, 2, Q("11 mm")))
sketch4.addConstraint(Sketcher.Constraint("DistanceX", 4, 2, 0, 2, Q("16 mm")))
sketch4.addConstraint(Sketcher.Constraint("DistanceX", 8, 2, 4, 2, Q("23 mm")))
sketch4.addConstraint(Sketcher.Constraint("DistanceX", 12, 2, 8, 2, Q("16 mm")))
sketch4.addConstraint(Sketcher.Constraint("DistanceX", -1, 1, 0, 2, Q("65.5 mm")))
pocket2 = doc.addObject("PartDesign::Pocket", "Pocket001")
body.addObject(pocket2)
pocket2.Profile = sketch4
pocket2.Length = 2.9
pocket2.Reversed = True

doc.recompute()
